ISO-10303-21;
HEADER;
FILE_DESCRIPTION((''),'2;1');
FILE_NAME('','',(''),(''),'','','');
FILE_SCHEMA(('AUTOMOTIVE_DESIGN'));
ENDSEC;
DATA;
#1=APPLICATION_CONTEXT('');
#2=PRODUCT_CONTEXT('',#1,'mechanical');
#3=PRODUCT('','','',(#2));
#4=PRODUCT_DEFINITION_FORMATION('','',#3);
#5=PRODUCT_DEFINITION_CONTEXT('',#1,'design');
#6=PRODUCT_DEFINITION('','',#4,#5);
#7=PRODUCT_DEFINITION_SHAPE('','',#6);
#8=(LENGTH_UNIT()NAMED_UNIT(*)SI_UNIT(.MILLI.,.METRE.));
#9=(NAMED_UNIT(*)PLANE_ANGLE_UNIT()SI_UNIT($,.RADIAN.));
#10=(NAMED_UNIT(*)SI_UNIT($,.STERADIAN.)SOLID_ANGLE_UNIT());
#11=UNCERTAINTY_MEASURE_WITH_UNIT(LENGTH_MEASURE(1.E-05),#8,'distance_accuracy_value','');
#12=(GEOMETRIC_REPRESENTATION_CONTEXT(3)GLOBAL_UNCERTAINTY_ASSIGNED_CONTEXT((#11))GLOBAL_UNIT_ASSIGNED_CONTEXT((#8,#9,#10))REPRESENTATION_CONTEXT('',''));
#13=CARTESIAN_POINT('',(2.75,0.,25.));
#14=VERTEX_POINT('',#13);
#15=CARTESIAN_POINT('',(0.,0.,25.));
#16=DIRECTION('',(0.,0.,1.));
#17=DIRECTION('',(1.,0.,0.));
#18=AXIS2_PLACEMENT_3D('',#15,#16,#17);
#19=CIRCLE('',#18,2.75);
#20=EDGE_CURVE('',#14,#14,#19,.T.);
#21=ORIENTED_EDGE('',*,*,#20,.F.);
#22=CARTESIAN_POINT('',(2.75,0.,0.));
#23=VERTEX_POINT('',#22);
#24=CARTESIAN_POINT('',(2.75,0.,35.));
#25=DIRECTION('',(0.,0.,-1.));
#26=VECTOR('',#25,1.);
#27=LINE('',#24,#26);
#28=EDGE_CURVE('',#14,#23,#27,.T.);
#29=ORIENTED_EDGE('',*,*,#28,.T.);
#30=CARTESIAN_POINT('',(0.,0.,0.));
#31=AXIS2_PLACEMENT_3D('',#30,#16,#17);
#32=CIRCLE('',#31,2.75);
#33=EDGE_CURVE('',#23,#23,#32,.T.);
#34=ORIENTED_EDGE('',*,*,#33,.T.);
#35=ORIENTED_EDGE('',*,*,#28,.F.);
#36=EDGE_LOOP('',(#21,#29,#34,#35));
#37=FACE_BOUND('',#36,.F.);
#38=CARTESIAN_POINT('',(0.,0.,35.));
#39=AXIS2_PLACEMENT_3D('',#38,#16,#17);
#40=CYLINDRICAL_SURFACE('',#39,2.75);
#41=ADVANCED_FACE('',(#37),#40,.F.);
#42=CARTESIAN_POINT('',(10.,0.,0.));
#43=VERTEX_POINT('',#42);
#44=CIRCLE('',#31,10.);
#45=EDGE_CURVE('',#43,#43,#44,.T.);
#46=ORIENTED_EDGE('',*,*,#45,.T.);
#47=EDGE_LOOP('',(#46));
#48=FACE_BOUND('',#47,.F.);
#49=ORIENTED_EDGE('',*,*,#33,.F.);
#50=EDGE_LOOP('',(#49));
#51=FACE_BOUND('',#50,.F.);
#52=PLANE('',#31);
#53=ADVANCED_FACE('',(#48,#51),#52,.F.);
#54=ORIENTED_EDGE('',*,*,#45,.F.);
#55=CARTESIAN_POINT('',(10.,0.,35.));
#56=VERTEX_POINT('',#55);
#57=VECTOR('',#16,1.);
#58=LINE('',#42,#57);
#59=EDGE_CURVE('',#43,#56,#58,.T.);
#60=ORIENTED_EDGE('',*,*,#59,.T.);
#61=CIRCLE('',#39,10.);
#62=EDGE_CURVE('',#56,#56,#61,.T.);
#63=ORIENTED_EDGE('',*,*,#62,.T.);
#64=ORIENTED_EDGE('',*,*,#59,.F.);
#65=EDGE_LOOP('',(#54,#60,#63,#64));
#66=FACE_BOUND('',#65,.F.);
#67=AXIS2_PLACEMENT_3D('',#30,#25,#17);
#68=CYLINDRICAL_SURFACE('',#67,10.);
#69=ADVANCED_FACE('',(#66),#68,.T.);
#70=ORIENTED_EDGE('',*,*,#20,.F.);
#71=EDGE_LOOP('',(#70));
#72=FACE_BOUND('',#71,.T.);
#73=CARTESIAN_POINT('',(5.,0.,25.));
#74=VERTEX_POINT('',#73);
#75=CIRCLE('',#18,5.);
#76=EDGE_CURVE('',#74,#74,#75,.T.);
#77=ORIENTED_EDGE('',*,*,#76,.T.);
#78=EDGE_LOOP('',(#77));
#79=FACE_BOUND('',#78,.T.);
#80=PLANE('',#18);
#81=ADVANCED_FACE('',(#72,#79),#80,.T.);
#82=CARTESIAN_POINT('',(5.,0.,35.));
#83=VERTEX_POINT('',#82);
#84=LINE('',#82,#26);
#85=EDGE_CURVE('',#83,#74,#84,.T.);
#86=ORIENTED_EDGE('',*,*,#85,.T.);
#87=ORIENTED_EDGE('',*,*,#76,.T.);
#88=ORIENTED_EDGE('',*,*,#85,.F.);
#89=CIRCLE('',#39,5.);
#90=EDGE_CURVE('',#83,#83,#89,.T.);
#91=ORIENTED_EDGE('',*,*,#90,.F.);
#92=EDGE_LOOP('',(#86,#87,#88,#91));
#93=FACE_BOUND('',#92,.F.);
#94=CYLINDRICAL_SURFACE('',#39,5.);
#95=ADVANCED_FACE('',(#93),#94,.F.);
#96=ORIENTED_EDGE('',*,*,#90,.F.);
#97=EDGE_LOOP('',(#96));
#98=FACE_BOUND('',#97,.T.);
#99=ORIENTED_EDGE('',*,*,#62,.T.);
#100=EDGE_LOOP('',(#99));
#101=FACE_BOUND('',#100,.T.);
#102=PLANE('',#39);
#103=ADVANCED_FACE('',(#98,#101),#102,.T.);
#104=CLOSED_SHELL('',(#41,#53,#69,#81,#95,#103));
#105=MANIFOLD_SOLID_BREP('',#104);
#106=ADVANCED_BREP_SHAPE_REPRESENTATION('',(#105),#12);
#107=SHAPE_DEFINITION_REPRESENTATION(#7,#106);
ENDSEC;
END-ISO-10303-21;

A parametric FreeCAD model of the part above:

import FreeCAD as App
import Part
import Sketcher

V = App.Vector

doc = App.newDocument("Part")
body = doc.addObject("PartDesign::Body", "Body")

# Sketch on XY plane
sketch1 = body.newObject("Sketcher::SketchObject", "Sketch")
sketch1.AttachmentSupport = (doc.getObject("XY_Plane"), [""])
sketch1.MapMode = "FlatFace"
sketch1.addGeometry(Part.Circle(V(0, 0, 0), V(0, 0, 1), 10), False)
sketch1.addConstraint([
    Sketcher.Constraint("Coincident", 0, 3, -1, 1),
    Sketcher.Constraint("Diameter", 0, 20.0),
])
pad1 = body.newObject("PartDesign::Pad", "Pad")
pad1.Profile = sketch1
pad1.Length = 35

# Sketch on XY plane
sketch2 = body.newObject("Sketcher::SketchObject", "Sketch001")
sketch2.AttachmentSupport = (doc.getObject("XY_Plane"), [""])
sketch2.MapMode = "FlatFace"
sketch2.AttachmentOffset = App.Placement(V(0, 0, 35), App.Rotation())
sketch2.addGeometry(Part.Circle(V(0, 0, 0), V(0, 0, 1), 2.8), False)
sketch2.addConstraint([
    Sketcher.Constraint("Coincident", 0, 3, -1, 1),
    Sketcher.Constraint("Diameter", 0, 5.5),
])
pocket1 = body.newObject("PartDesign::Pocket", "Pocket")
pocket1.Profile = sketch2
pocket1.Type = "ThroughAll"

# Sketch on XY plane
sketch3 = body.newObject("Sketcher::SketchObject", "Sketch002")
sketch3.AttachmentSupport = (doc.getObject("XY_Plane"), [""])
sketch3.MapMode = "FlatFace"
sketch3.AttachmentOffset = App.Placement(V(0, 0, 35), App.Rotation())
sketch3.addGeometry(Part.Circle(V(0, 0, 0), V(0, 0, 1), 5), False)
sketch3.addConstraint([
    Sketcher.Constraint("Coincident", 0, 3, -1, 1),
    Sketcher.Constraint("Diameter", 0, 10.0),
])
pocket2 = body.newObject("PartDesign::Pocket", "Pocket001")
pocket2.Profile = sketch3
pocket2.Length = 10

doc.recompute()
